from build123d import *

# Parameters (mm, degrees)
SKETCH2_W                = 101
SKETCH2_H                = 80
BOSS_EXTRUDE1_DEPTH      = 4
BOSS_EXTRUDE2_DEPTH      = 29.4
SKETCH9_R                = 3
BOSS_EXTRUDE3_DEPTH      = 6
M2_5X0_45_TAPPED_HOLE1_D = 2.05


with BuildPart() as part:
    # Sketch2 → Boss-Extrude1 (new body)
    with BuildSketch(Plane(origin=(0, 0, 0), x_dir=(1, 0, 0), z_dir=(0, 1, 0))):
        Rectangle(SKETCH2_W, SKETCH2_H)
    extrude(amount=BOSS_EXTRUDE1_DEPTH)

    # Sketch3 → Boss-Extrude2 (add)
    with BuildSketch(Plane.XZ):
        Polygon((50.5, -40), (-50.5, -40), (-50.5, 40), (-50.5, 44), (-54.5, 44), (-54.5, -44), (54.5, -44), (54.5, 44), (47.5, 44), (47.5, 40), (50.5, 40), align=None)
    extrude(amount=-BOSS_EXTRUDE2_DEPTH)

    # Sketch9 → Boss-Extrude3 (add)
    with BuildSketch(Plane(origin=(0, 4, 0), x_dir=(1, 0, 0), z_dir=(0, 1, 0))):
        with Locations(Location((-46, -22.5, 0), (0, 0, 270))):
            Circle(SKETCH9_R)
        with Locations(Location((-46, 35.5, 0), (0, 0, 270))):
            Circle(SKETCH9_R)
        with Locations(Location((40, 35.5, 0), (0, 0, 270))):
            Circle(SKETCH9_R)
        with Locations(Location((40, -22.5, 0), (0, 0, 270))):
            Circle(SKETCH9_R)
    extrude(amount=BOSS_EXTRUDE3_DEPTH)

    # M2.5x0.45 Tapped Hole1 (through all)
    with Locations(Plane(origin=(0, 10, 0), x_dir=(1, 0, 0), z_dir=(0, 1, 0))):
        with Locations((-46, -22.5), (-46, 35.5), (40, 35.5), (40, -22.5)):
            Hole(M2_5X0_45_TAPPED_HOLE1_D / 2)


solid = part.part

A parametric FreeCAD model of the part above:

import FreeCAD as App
import Part
import Sketcher

V = App.Vector


def add_polygon(sketch, points):
    """Adds a closed chain of lines whose ends are joined by coincident constraints."""
    first, n = sketch.GeometryCount, len(points)
    for a, b in zip(points, points[1:] + points[:1]):
        sketch.addGeometry(Part.LineSegment(App.Vector(*a, 0), App.Vector(*b, 0)), False)
    for i in range(n):
        sketch.addConstraint(Sketcher.Constraint("Coincident", first + i, 2, first + (i + 1) % n, 1))

doc = App.newDocument("Part")
body = doc.addObject("PartDesign::Body", "Body")

sketch1 = body.newObject("Sketcher::SketchObject", "Sketch")
sketch1.AttachmentSupport = (doc.getObject("XZ_Plane"), [""])
sketch1.MapMode = "FlatFace"
add_polygon(sketch1, [(-50, -40), (-50, 40), (50, 40), (50, -40)])
sketch1.addConstraint([
    Sketcher.Constraint("Vertical", 0),
    Sketcher.Constraint("Horizontal", 1),
    Sketcher.Constraint("Vertical", 2),
    Sketcher.Constraint("Horizontal", 3),
    Sketcher.Constraint("Symmetric", 0, 2, 2, 2, -1, 1),
    Sketcher.Constraint("DistanceX", 1, 1, 1, 2, 101.0),
    Sketcher.Constraint("DistanceY", 0, 1, 0, 2, 80.0),
])
pad1 = body.newObject("PartDesign::Pad", "Pad")
pad1.Profile = sketch1
pad1.Length = 4
pad1.Reversed = True

sketch2 = body.newObject("Sketcher::SketchObject", "Sketch001")
sketch2.AttachmentSupport = (doc.getObject("XZ_Plane"), [""])
sketch2.MapMode = "FlatFace"
add_polygon(sketch2, [(50.5, -40), (-50.5, -40), (-50.5, 44), (-54.5, 44), (-54.5, -44), (54.5, -44), (54.5, 44), (47.5, 44), (47.5, 40), (50.5, 40)])
sketch2.addConstraint([
    Sketcher.Constraint("Horizontal", 0),
    Sketcher.Constraint("Vertical", 1),
    Sketcher.Constraint("Horizontal", 2),
    Sketcher.Constraint("Vertical", 3),
    Sketcher.Constraint("Horizontal", 4),
    Sketcher.Constraint("Vertical", 5),
    Sketcher.Constraint("Horizontal", 6),
    Sketcher.Constraint("Vertical", 7),
    Sketcher.Constraint("Horizontal", 8),
    Sketcher.Constraint("Vertical", 9),
    Sketcher.Constraint("Symmetric", 2, 2, 4, 2, -1, 1),
    Sketcher.Constraint("Symmetric", 0, 2, 8, 2, -1, 1),
    Sketcher.Constraint("Horizontal", 2, 2, 5, 2),
    Sketcher.Constraint("Equal", 2, 7),
    Sketcher.Constraint("DistanceX", 0, 2, 0, 1, 101.0),
    Sketcher.Constraint("DistanceX", 2, 2, 2, 1, 4.0),
    Sketcher.Constraint("DistanceX", 6, 2, 6, 1, 7.0),
    Sketcher.Constraint("DistanceY", 1, 1, 1, 2, 84.0),
])
pad2 = body.newObject("PartDesign::Pad", "Pad001")
pad2.Profile = sketch2
pad2.Length = 29.4
pad2.Reversed = True

sketch3 = body.newObject("Sketcher::SketchObject", "Sketch002")
sketch3.AttachmentSupport = (doc.getObject("XZ_Plane"), [""])
sketch3.MapMode = "FlatFace"
sketch3.AttachmentOffset = App.Placement(V(0, 0, -4), App.Rotation())
sketch3.addGeometry([
    Part.Circle(V(-46, 22.5, 0), V(0, 0, 1), 3),
    Part.Circle(V(-46, -35.5, 0), V(0, 0, 1), 3),
    Part.Circle(V(40, -35.5, 0), V(0, 0, 1), 3),
    Part.Circle(V(40, 22.5, 0), V(0, 0, 1), 3),
], False)
sketch3.addConstraint([
    Sketcher.Constraint("Equal", 0, 1),
    Sketcher.Constraint("Equal", 1, 2),
    Sketcher.Constraint("Equal", 2, 3),
    Sketcher.Constraint("Horizontal", 1, 3, 2, 3),
    Sketcher.Constraint("Horizontal", 0, 3, 3, 3),
    Sketcher.Constraint("Vertical", 0, 3, 1, 3),
    Sketcher.Constraint("Vertical", 2, 3, 3, 3),
    Sketcher.Constraint("Diameter", 0, 6.0),
    Sketcher.Constraint("DistanceX", 0, 3, -1, 1, 46.0),
    Sketcher.Constraint("DistanceX", -1, 1, 2, 3, 40.0),
    Sketcher.Constraint("DistanceY", 1, 3, 0, 3, 58.0),
    Sketcher.Constraint("DistanceY", -1, 1, 0, 3, 22.5),
])
pad3 = body.newObject("PartDesign::Pad", "Pad002")
pad3.Profile = sketch3
pad3.Length = 6
pad3.Reversed = True

sketch4 = body.newObject("Sketcher::SketchObject", "Sketch003")
sketch4.AttachmentSupport = (doc.getObject("XZ_Plane"), [""])
sketch4.MapMode = "FlatFace"
sketch4.AttachmentOffset = App.Placement(V(0, 0, -10), App.Rotation())
sketch4.addGeometry([
    Part.Circle(V(-46, 22.5, 0), V(0, 0, 1), 1),
    Part.Circle(V(-46, -35.5, 0), V(0, 0, 1), 1),
    Part.Circle(V(40, -35.5, 0), V(0, 0, 1), 1),
    Part.Circle(V(40, 22.5, 0), V(0, 0, 1), 1),
], False)
sketch4.addConstraint([
    Sketcher.Constraint("Equal", 0, 1),
    Sketcher.Constraint("Equal", 1, 2),
    Sketcher.Constraint("Equal", 2, 3),
    Sketcher.Constraint("Horizontal", 1, 3, 2, 3),
    Sketcher.Constraint("Horizontal", 0, 3, 3, 3),
    Sketcher.Constraint("Vertical", 0, 3, 1, 3),
    Sketcher.Constraint("Vertical", 2, 3, 3, 3),
    Sketcher.Constraint("Diameter", 0, 2.05),
    Sketcher.Constraint("DistanceX", 0, 3, -1, 1, 46.0),
    Sketcher.Constraint("DistanceX", -1, 1, 2, 3, 40.0),
    Sketcher.Constraint("DistanceY", 1, 3, 0, 3, 58.0),
    Sketcher.Constraint("DistanceY", -1, 1, 0, 3, 22.5),
])
doc.recompute()
hole = body.newObject("PartDesign::Hole", "Hole")
hole.Profile = sketch4
hole.ThreadType = "None"
hole.Diameter = 2.05
hole.DepthType = "ThroughAll"
hole.Reversed = True

doc.recompute()
